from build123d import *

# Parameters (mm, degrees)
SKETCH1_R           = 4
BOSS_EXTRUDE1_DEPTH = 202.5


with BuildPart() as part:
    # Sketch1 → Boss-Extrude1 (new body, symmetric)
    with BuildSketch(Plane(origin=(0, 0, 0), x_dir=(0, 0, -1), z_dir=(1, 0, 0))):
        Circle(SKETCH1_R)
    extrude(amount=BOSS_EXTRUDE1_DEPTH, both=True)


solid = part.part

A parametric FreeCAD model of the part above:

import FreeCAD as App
import Part
import Sketcher
from FreeCAD import Vector

doc = App.newDocument("Part")
body = doc.addObject("PartDesign::Body", "Body")

sketch1 = body.newObject("Sketcher::SketchObject", "Sketch")
sketch1.AttachmentSupport = (doc.getObject("YZ_Plane"), [""])
sketch1.MapMode = "FlatFace"
sketch1.addGeometry(Part.Circle(Vector(0, 0, 0), Vector(0, 0, 1), 4), False)
sketch1.addConstraint([
    Sketcher.Constraint("Coincident", 0, 3, -1, 1),
    Sketcher.Constraint("Diameter", 0, 8.0),
])
pad1 = body.newObject("PartDesign::Pad", "Pad")
pad1.Profile = sketch1
pad1.Length = 405
pad1.Midplane = True

doc.recompute()
